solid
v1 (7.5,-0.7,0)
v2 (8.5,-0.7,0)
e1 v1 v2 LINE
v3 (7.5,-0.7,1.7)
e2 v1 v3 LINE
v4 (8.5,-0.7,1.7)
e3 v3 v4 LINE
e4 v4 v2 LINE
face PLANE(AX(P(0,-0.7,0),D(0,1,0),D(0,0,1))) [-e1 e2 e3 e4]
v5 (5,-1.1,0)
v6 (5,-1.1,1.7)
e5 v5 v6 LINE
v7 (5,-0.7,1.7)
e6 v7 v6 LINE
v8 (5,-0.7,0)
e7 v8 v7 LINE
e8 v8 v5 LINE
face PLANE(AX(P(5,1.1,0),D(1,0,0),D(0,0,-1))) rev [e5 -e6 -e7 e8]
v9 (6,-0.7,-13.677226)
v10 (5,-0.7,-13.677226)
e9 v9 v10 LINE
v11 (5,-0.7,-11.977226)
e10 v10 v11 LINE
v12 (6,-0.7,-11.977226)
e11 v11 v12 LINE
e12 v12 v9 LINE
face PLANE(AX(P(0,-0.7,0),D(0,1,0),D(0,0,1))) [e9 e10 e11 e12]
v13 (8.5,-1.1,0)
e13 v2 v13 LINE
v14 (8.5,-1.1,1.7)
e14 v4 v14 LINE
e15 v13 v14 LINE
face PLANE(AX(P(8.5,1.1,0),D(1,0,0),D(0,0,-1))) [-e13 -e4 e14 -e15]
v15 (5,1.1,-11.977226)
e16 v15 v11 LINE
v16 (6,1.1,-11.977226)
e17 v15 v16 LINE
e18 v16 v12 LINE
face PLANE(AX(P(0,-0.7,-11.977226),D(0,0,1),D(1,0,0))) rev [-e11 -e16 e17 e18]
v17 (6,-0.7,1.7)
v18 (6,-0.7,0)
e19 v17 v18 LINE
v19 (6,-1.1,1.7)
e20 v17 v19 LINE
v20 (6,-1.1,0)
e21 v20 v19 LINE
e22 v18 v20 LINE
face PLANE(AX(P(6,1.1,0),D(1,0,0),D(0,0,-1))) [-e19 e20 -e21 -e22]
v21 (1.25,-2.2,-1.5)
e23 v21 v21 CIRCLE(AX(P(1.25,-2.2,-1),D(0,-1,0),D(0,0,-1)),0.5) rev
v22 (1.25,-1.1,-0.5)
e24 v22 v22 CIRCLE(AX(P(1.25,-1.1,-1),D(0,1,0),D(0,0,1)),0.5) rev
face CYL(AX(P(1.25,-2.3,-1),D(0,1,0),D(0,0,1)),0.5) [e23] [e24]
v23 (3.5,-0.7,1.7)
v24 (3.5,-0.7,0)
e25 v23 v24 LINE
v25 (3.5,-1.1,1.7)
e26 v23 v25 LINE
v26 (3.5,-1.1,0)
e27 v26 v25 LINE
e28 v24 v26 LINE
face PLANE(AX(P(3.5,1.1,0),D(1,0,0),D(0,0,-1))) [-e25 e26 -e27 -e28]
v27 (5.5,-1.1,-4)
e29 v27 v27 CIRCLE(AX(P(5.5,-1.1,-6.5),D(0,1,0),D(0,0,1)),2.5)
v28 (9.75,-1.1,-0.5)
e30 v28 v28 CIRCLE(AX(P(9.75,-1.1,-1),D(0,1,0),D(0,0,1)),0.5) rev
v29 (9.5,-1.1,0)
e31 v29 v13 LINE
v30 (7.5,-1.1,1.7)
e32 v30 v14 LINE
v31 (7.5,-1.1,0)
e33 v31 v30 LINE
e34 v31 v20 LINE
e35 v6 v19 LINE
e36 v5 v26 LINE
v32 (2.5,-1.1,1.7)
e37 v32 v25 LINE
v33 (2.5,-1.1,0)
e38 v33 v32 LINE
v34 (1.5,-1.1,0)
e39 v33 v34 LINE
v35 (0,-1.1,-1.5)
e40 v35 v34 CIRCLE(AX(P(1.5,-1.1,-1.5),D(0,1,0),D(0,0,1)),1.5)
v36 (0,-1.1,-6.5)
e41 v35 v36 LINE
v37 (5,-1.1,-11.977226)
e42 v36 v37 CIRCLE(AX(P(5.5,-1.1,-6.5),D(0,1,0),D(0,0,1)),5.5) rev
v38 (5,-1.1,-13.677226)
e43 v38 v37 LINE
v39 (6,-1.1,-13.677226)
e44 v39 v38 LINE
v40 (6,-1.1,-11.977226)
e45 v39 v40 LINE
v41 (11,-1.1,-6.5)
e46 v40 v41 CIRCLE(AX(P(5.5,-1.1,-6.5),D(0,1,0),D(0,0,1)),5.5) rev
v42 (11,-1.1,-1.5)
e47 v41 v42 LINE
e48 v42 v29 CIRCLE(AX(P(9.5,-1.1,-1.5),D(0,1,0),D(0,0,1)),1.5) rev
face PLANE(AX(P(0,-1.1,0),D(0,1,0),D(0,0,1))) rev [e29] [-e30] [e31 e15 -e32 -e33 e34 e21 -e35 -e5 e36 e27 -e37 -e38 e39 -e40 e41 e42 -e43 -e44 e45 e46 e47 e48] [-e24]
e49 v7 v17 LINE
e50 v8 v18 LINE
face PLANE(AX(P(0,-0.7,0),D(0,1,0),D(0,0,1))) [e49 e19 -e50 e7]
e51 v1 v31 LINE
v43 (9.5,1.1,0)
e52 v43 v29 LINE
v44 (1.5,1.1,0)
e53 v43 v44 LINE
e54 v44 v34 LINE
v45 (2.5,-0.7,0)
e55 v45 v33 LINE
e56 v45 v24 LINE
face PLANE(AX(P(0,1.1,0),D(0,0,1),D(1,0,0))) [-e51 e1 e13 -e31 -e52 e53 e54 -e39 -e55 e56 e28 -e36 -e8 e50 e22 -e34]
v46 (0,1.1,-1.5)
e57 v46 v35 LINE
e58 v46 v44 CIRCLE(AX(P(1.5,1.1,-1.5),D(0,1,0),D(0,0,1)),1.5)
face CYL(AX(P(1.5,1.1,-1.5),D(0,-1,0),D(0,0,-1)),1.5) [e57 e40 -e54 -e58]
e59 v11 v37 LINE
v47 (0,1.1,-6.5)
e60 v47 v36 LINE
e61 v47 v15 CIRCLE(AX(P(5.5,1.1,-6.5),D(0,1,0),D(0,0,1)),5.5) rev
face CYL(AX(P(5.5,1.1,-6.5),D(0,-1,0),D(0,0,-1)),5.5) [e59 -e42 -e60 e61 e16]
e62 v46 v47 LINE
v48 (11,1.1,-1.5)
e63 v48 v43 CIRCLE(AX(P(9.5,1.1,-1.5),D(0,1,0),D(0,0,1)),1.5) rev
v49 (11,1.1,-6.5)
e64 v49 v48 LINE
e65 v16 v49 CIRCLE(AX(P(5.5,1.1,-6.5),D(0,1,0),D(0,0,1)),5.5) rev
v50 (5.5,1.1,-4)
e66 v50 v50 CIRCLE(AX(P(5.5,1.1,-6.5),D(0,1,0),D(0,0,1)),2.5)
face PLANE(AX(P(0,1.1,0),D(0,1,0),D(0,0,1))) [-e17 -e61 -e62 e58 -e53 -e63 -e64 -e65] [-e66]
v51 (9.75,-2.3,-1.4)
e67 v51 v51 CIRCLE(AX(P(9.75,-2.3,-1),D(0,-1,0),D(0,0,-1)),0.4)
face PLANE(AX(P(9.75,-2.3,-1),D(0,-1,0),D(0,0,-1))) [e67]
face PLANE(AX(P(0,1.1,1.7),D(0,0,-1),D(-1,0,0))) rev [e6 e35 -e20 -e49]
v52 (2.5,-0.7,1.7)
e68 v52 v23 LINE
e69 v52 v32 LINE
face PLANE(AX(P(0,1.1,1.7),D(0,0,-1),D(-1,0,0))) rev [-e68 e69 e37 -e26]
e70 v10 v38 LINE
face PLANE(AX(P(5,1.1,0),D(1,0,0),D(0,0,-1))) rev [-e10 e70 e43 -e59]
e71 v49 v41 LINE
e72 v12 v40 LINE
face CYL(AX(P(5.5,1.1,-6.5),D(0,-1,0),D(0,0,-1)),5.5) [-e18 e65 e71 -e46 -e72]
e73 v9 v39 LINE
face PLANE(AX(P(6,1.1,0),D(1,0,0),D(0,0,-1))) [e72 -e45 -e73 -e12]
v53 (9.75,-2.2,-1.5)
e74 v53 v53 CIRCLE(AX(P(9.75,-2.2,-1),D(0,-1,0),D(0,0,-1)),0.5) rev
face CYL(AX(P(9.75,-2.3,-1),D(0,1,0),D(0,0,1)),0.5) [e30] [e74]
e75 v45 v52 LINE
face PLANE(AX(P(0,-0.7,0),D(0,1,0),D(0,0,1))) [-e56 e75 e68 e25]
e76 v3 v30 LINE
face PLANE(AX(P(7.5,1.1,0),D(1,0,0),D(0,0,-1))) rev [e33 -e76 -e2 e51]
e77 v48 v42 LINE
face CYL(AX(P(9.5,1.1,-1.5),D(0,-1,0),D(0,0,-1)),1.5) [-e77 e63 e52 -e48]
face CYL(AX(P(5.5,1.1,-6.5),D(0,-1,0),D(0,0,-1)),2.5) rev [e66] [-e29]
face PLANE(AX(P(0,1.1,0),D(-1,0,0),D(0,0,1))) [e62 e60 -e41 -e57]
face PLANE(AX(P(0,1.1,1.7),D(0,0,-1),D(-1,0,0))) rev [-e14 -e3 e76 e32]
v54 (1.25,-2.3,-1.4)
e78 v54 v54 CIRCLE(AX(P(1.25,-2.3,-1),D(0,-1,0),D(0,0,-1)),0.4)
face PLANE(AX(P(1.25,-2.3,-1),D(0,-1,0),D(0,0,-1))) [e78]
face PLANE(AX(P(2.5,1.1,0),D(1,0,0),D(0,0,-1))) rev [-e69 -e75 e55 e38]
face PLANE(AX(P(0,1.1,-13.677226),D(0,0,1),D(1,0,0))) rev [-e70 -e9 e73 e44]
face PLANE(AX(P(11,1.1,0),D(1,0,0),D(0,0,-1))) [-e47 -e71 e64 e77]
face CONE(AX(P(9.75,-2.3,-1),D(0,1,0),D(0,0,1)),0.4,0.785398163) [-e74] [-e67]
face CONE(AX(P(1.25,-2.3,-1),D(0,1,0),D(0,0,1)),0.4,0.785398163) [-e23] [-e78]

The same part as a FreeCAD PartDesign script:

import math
import FreeCAD as App
import Part
import Sketcher
from FreeCAD import Vector


def edges_at(feature, points):
    """Names of the edges that pass closest to the given points."""
    edges = feature.Shape.Edges
    near = lambda p: min(range(len(edges)), key=lambda i: edges[i].distToShape(Part.Vertex(*p))[0])
    return sorted({f"Edge{near(p) + 1}" for p in points})

doc = App.newDocument("Part")
body = doc.addObject("PartDesign::Body", "Body")

# Sketch on XZ plane
sketch1 = body.newObject("Sketcher::SketchObject", "Sketch")
sketch1.AttachmentSupport = (doc.getObject("XZ_Plane"), [""])
sketch1.MapMode = "FlatFace"
sketch1.addGeometry([
    Part.ArcOfCircle(Part.Circle(Vector(1.5, -1.5, 0), Vector(0, 0, 1), 1.5), math.radians(90), math.radians(180)),  # 0
    Part.LineSegment(Vector(1.5, 0, 0), Vector(2.5, 0, 0)),  # 1
    Part.LineSegment(Vector(2.5, 0, 0), Vector(2.5, 1.7, 0)),  # 2
    Part.LineSegment(Vector(2.5, 1.7, 0), Vector(3.5, 1.7, 0)),  # 3
    Part.LineSegment(Vector(3.5, 1.7, 0), Vector(3.5, 0, 0)),  # 4
    Part.LineSegment(Vector(3.5, 0, 0), Vector(5, 0, 0)),  # 5
    Part.LineSegment(Vector(5, 0, 0), Vector(5, 1.7, 0)),  # 6
    Part.LineSegment(Vector(5, 1.7, 0), Vector(6, 1.7, 0)),  # 7
    Part.LineSegment(Vector(6, 1.7, 0), Vector(6, 0, 0)),  # 8
    Part.LineSegment(Vector(6, 0, 0), Vector(7.5, 0, 0)),  # 9
    Part.LineSegment(Vector(7.5, 0, 0), Vector(7.5, 1.7, 0)),  # 10
    Part.LineSegment(Vector(7.5, 1.7, 0), Vector(8.5, 1.7, 0)),  # 11
    Part.LineSegment(Vector(8.5, 1.7, 0), Vector(8.5, 0, 0)),  # 12
    Part.LineSegment(Vector(8.5, 0, 0), Vector(9.5, 0, 0)),  # 13
    Part.ArcOfCircle(Part.Circle(Vector(9.5, -1.5, 0), Vector(0, 0, 1), 1.5), math.radians(0), math.radians(90)),  # 14
    Part.LineSegment(Vector(11, -1.5, 0), Vector(11, -6.5, 0)),  # 15
    Part.ArcOfCircle(Part.Circle(Vector(5.5, -6.5, 0), Vector(0, 0, 1), 5.5), math.radians(-85), math.radians(0)),  # 16
    Part.LineSegment(Vector(6, -12, 0), Vector(6, -13.7, 0)),  # 17
    Part.LineSegment(Vector(6, -13.7, 0), Vector(5, -13.7, 0)),  # 18
    Part.LineSegment(Vector(5, -13.7, 0), Vector(5, -12, 0)),  # 19
    Part.ArcOfCircle(Part.Circle(Vector(5.5, -6.5, 0), Vector(0, 0, 1), 5.5), math.radians(180), math.radians(265)),  # 20
    Part.LineSegment(Vector(0, -6.5, 0), Vector(0, -1.5, 0)),  # 21
    Part.Circle(Vector(5.5, -6.5, 0), Vector(0, 0, 1), 2.5),  # 22
], False)
sketch1.addConstraint([
    Sketcher.Constraint("Tangent", 0, 1, 1, 1),
    Sketcher.Constraint("Coincident", 1, 2, 2, 1),
    Sketcher.Constraint("Coincident", 2, 2, 3, 1),
    Sketcher.Constraint("Coincident", 3, 2, 4, 1),
    Sketcher.Constraint("Coincident", 4, 2, 5, 1),
    Sketcher.Constraint("Coincident", 5, 2, 6, 1),
    Sketcher.Constraint("Coincident", 6, 2, 7, 1),
    Sketcher.Constraint("Coincident", 7, 2, 8, 1),
    Sketcher.Constraint("Coincident", 8, 2, 9, 1),
    Sketcher.Constraint("Coincident", 9, 2, 10, 1),
    Sketcher.Constraint("Coincident", 10, 2, 11, 1),
    Sketcher.Constraint("Coincident", 11, 2, 12, 1),
    Sketcher.Constraint("Coincident", 12, 2, 13, 1),
    Sketcher.Constraint("Tangent", 13, 2, 14, 2),
    Sketcher.Constraint("Tangent", 14, 1, 15, 1),
    Sketcher.Constraint("Tangent", 15, 2, 16, 2),
    Sketcher.Constraint("Coincident", 16, 1, 17, 1),
    Sketcher.Constraint("Coincident", 17, 2, 18, 1),
    Sketcher.Constraint("Coincident", 18, 2, 19, 1),
    Sketcher.Constraint("Coincident", 19, 2, 20, 2),
    Sketcher.Constraint("Tangent", 20, 1, 21, 1),
    Sketcher.Constraint("Tangent", 21, 2, 0, 2),
    Sketcher.Constraint("Horizontal", 1),
    Sketcher.Constraint("Vertical", 2),
    Sketcher.Constraint("Horizontal", 3),
    Sketcher.Constraint("Vertical", 4),
    Sketcher.Constraint("Horizontal", 5),
    Sketcher.Constraint("Vertical", 6),
    Sketcher.Constraint("Horizontal", 7),
    Sketcher.Constraint("Vertical", 8),
    Sketcher.Constraint("Horizontal", 9),
    Sketcher.Constraint("Vertical", 10),
    Sketcher.Constraint("Horizontal", 11),
    Sketcher.Constraint("Vertical", 12),
    Sketcher.Constraint("Horizontal", 13),
    Sketcher.Constraint("Vertical", 15),
    Sketcher.Constraint("Vertical", 17),
    Sketcher.Constraint("Horizontal", 18),
    Sketcher.Constraint("Vertical", 19),
    Sketcher.Constraint("Vertical", 21),
    Sketcher.Constraint("Coincident", 20, 3, 16, 3),
    Sketcher.Constraint("Coincident", 22, 3, 16, 3),
    Sketcher.Constraint("Equal", 0, 14),
    Sketcher.Constraint("Equal", 16, 20),
    Sketcher.Constraint("PointOnObject", 0, 1, -1),
    Sketcher.Constraint("PointOnObject", 4, 2, -1),
    Sketcher.Constraint("PointOnObject", 8, 2, -1),
    Sketcher.Constraint("PointOnObject", 12, 2, -1),
    Sketcher.Constraint("PointOnObject", 20, 1, -2),
    Sketcher.Constraint("Horizontal", 3, 2, 6, 2),
    Sketcher.Constraint("Horizontal", 7, 2, 10, 2),
    Sketcher.Constraint("Horizontal", 16, 1, 19, 2),
    Sketcher.Constraint("Vertical", 8, 2, 16, 1),
    Sketcher.Constraint("Vertical", 6, 2, 18, 2),
    Sketcher.Constraint("Equal", 1, 3),
    Sketcher.Constraint("Equal", 3, 7),
    Sketcher.Constraint("Equal", 5, 9),
    Sketcher.Constraint("Equal", 7, 11),
    Sketcher.Constraint("Equal", 12, 17),
    Sketcher.Constraint("Diameter", 22, 5.0),
    Sketcher.Constraint("Radius", 0, 1.5),
    Sketcher.Constraint("Radius", 16, 5.5),
    Sketcher.Constraint("DistanceX", 1, 1, 1, 2, 1.0),
    Sketcher.Constraint("DistanceY", 15, 2, 15, 1, 5.0),
    Sketcher.Constraint("DistanceY", 2, 1, 2, 2, 1.7),
])
pad1 = body.newObject("PartDesign::Pad", "Pad")
pad1.Profile = sketch1
pad1.Length = 2.2
pad1.Midplane = True

# Sketch on XZ plane
sketch2 = body.newObject("Sketcher::SketchObject", "Sketch001")
sketch2.AttachmentSupport = (doc.getObject("XZ_Plane"), [""])
sketch2.MapMode = "FlatFace"
sketch2.AttachmentOffset = App.Placement(Vector(0, 0, -1.1), App.Rotation())
sketch2.addGeometry([
    Part.LineSegment(Vector(5, -13.7, 0), Vector(5, -12, 0)),  # 0
    Part.LineSegment(Vector(5, -12, 0), Vector(6, -12, 0)),  # 1
    Part.LineSegment(Vector(6, -12, 0), Vector(6, -13.7, 0)),  # 2
    Part.LineSegment(Vector(6, -13.7, 0), Vector(5, -13.7, 0)),  # 3
    Part.LineSegment(Vector(2.5, 0, 0), Vector(2.5, 1.7, 0)),  # 4
    Part.LineSegment(Vector(2.5, 1.7, 0), Vector(3.5, 1.7, 0)),  # 5
    Part.LineSegment(Vector(3.5, 1.7, 0), Vector(3.5, 0, 0)),  # 6
    Part.LineSegment(Vector(3.5, 0, 0), Vector(2.5, 0, 0)),  # 7
    Part.LineSegment(Vector(5, 0, 0), Vector(5, 1.7, 0)),  # 8
    Part.LineSegment(Vector(5, 1.7, 0), Vector(6, 1.7, 0)),  # 9
    Part.LineSegment(Vector(6, 1.7, 0), Vector(6, 0, 0)),  # 10
    Part.LineSegment(Vector(6, 0, 0), Vector(5, 0, 0)),  # 11
    Part.LineSegment(Vector(7.5, 0, 0), Vector(7.5, 1.7, 0)),  # 12
    Part.LineSegment(Vector(7.5, 1.7, 0), Vector(8.5, 1.7, 0)),  # 13
    Part.LineSegment(Vector(8.5, 1.7, 0), Vector(8.5, 0, 0)),  # 14
    Part.LineSegment(Vector(8.5, 0, 0), Vector(7.5, 0, 0)),  # 15
], False)
sketch2.addConstraint([
    Sketcher.Constraint("Coincident", 0, 2, 1, 1),
    Sketcher.Constraint("Coincident", 1, 2, 2, 1),
    Sketcher.Constraint("Coincident", 2, 2, 3, 1),
    Sketcher.Constraint("Coincident", 3, 2, 0, 1),
    Sketcher.Constraint("Coincident", 4, 2, 5, 1),
    Sketcher.Constraint("Coincident", 5, 2, 6, 1),
    Sketcher.Constraint("Coincident", 6, 2, 7, 1),
    Sketcher.Constraint("Coincident", 7, 2, 4, 1),
    Sketcher.Constraint("Coincident", 8, 2, 9, 1),
    Sketcher.Constraint("Coincident", 9, 2, 10, 1),
    Sketcher.Constraint("Coincident", 10, 2, 11, 1),
    Sketcher.Constraint("Coincident", 11, 2, 8, 1),
    Sketcher.Constraint("Coincident", 12, 2, 13, 1),
    Sketcher.Constraint("Coincident", 13, 2, 14, 1),
    Sketcher.Constraint("Coincident", 14, 2, 15, 1),
    Sketcher.Constraint("Coincident", 15, 2, 12, 1),
    Sketcher.Constraint("Vertical", 0),
    Sketcher.Constraint("Horizontal", 1),
    Sketcher.Constraint("Vertical", 2),
    Sketcher.Constraint("Horizontal", 3),
    Sketcher.Constraint("Vertical", 4),
    Sketcher.Constraint("Horizontal", 5),
    Sketcher.Constraint("Vertical", 6),
    Sketcher.Constraint("Horizontal", 7),
    Sketcher.Constraint("Vertical", 8),
    Sketcher.Constraint("Horizontal", 9),
    Sketcher.Constraint("Vertical", 10),
    Sketcher.Constraint("Horizontal", 11),
    Sketcher.Constraint("Vertical", 12),
    Sketcher.Constraint("Horizontal", 13),
    Sketcher.Constraint("Vertical", 14),
    Sketcher.Constraint("Horizontal", 15),
    Sketcher.Constraint("PointOnObject", 6, 2, -1),
    Sketcher.Constraint("PointOnObject", 10, 2, -1),
    Sketcher.Constraint("PointOnObject", 14, 2, -1),
    Sketcher.Constraint("Horizontal", 5, 2, 8, 2),
    Sketcher.Constraint("Horizontal", 9, 2, 12, 2),
    Sketcher.Constraint("Vertical", 3, 2, 8, 2),
    Sketcher.Constraint("Vertical", 2, 2, 9, 2),
    Sketcher.Constraint("Equal", 3, 5),
    Sketcher.Constraint("Equal", 11, 13),
    Sketcher.Constraint("Equal", 2, 4),
    Sketcher.Constraint("DistanceX", 1, 1, 1, 2, 1.0),
    Sketcher.Constraint("DistanceY", 0, 1, 0, 2, 1.7),
    Sketcher.Constraint("DistanceX", -1, 1, 0, 2, 5.0),
    Sketcher.Constraint("DistanceX", 5, 2, 12, 2, 4.0),
    Sketcher.Constraint("DistanceX", -1, 1, 4, 2, 2.5),
    Sketcher.Constraint("DistanceY", 0, 2, -1, 1, 11.977226),
])
pocket1 = body.newObject("PartDesign::Pocket", "Pocket")
pocket1.Profile = sketch2
pocket1.Length = 1.8
pocket1.Reversed = True

# Sketch on XZ plane
sketch3 = body.newObject("Sketcher::SketchObject", "Sketch002")
sketch3.AttachmentSupport = (doc.getObject("XZ_Plane"), [""])
sketch3.MapMode = "FlatFace"
sketch3.AttachmentOffset = App.Placement(Vector(0, 0, 1.1), App.Rotation())
sketch3.addGeometry([
    Part.Circle(Vector(1.2, -1, 0), Vector(0, 0, 1), 0.5),
    Part.Circle(Vector(9.8, -1, 0), Vector(0, 0, 1), 0.5),
], False)
sketch3.addConstraint([
    Sketcher.Constraint("Equal", 0, 1),
    Sketcher.Constraint("Horizontal", 0, 3, 1, 3),
    Sketcher.Constraint("Diameter", 0, 1.0),
    Sketcher.Constraint("DistanceY", 0, 3, -1, 1, 1.0),
    Sketcher.Constraint("DistanceX", 0, 3, 1, 3, 8.5),
    Sketcher.Constraint("DistanceX", -1, 1, 0, 3, 1.25),
])
pad2 = body.newObject("PartDesign::Pad", "Pad001")
pad2.Profile = sketch3
pad2.Length = 1.2
doc.recompute()

chamfer = body.newObject("PartDesign::Chamfer", "Chamfer")
chamfer.Base = (pad2, edges_at(pad2, [(1.25, -2.3, -1.5), (9.75, -2.3, -1.5)]))
chamfer.Size = 0.1

doc.recompute()
